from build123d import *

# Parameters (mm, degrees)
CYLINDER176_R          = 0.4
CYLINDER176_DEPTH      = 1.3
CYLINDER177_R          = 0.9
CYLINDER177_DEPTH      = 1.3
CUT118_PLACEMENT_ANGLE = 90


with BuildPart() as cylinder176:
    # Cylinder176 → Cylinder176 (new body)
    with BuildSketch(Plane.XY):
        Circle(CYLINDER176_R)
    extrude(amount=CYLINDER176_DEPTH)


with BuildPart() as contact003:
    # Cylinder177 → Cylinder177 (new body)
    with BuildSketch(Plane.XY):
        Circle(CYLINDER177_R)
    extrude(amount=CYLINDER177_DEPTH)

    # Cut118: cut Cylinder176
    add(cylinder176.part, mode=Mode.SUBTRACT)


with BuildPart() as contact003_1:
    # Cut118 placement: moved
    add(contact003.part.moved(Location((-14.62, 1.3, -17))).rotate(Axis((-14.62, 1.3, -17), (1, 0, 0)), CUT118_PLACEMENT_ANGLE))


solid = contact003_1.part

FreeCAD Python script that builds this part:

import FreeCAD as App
import Part
import Sketcher
from FreeCAD import Vector
Q = App.Units.Quantity

doc = App.newDocument("Part")
body = doc.addObject("PartDesign::Body", "Body")

sketch1 = body.newObject("Sketcher::SketchObject", "Sketch")
sketch1.AttachmentSupport = (doc.getObject("XY_Plane"), [""])
sketch1.MapMode = "FlatFace"
sketch1.addGeometry(Part.Circle(Vector(0, 0, 0), Vector(0, 0, 1), 0.4), False)
sketch1.addConstraint([
    Sketcher.Constraint("Coincident", 0, 3, -1, 1),
    Sketcher.Constraint("Diameter", 0, Q("0.8 mm")),
])
pad1 = body.newObject("PartDesign::Pad", "Pad")
pad1.Profile = sketch1
pad1.Length = 1.3
body2 = doc.addObject("PartDesign::Body", "Body001")

sketch2 = body2.newObject("Sketcher::SketchObject", "Sketch001")
sketch2.AttachmentSupport = (doc.getObject("XY_Plane001"), [""])
sketch2.MapMode = "FlatFace"
sketch2.addGeometry(Part.Circle(Vector(0, 0, 0), Vector(0, 0, 1), 0.9), False)
sketch2.addConstraint([
    Sketcher.Constraint("Coincident", 0, 3, -1, 1),
    Sketcher.Constraint("Diameter", 0, Q("1.8 mm")),
])
pad2 = body2.newObject("PartDesign::Pad", "Pad001")
pad2.Profile = sketch2
pad2.Length = 1.3
doc.recompute()

boolean = body2.newObject("PartDesign::Boolean", "Boolean")
boolean.Type = "Cut"
boolean.addObjects([body])
body3 = doc.addObject("PartDesign::Body", "Body002")
doc.recompute()

body2.Placement = App.Placement(Vector(-14.62, 1.3, -17), App.Rotation(Vector(1, 0, 0), 90))
boolean2 = body3.newObject("PartDesign::Boolean", "Boolean001")
boolean2.Type = "Fuse"
boolean2.addObjects([body2])

doc.recompute()
